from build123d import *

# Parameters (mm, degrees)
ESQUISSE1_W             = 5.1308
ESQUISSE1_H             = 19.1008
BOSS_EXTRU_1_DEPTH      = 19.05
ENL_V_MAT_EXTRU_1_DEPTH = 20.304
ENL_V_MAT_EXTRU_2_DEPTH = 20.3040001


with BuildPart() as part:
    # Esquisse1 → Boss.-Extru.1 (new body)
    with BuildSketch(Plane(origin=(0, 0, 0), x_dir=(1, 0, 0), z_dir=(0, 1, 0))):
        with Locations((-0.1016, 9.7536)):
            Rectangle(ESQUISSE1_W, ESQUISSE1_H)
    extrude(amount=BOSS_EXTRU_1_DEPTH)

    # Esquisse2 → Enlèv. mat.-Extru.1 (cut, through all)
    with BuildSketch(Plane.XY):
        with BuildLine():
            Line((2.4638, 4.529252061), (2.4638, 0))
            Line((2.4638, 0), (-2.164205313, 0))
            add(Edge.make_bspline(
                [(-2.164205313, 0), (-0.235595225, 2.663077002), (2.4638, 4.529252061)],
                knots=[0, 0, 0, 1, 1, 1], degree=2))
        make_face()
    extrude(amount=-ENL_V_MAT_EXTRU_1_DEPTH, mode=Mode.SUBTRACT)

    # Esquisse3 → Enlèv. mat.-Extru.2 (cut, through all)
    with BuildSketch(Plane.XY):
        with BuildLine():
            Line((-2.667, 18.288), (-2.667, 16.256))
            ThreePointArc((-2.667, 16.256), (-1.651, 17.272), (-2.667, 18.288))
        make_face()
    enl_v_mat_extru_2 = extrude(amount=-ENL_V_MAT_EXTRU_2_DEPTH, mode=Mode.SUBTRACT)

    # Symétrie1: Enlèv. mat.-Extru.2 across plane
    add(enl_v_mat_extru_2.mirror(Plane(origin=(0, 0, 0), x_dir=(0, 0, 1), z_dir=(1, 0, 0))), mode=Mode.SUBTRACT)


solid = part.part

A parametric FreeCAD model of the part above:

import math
import FreeCAD as App
import Part
import Sketcher

V = App.Vector
Q = App.Units.Quantity

doc = App.newDocument("Part")
body = doc.addObject("PartDesign::Body", "Body")

# Sketch on XZ plane
sketch1 = body.newObject("Sketcher::SketchObject", "Sketch")
sketch1.AttachmentSupport = (doc.getObject("XZ_Plane"), [""])
sketch1.MapMode = "FlatFace"
sketch1.addGeometry([
    Part.LineSegment(V(-3, -19, 0), V(-3, 0, 0)),
    Part.LineSegment(V(-3, 0, 0), V(2, 0, 0)),
    Part.LineSegment(V(2, 0, 0), V(2, -19, 0)),
    Part.LineSegment(V(2, -19, 0), V(-3, -19, 0)),
], False)
sketch1.addConstraint([
    Sketcher.Constraint("Coincident", 0, 2, 1, 1),
    Sketcher.Constraint("Coincident", 1, 2, 2, 1),
    Sketcher.Constraint("Coincident", 2, 2, 3, 1),
    Sketcher.Constraint("Coincident", 3, 2, 0, 1),
    Sketcher.Constraint("Vertical", 0),
    Sketcher.Constraint("Horizontal", 1),
    Sketcher.Constraint("Vertical", 2),
    Sketcher.Constraint("Horizontal", 3),
    Sketcher.Constraint("DistanceX", 1, 1, 1, 2, Q("0.202 in")),
    Sketcher.Constraint("DistanceY", 0, 1, 0, 2, Q("0.752 in")),
    Sketcher.Constraint("DistanceY", 2, 2, -1, 1, Q("0.76 in")),
    Sketcher.Constraint("DistanceX", 0, 2, -1, 1, Q("0.105 in")),
])
pad1 = body.newObject("PartDesign::Pad", "Pad")
pad1.Profile = sketch1
pad1.Length = Q("0.75 in")
pad1.Reversed = True

# Sketch on XY plane
sketch2 = body.newObject("Sketcher::SketchObject", "Sketch001")
sketch2.AttachmentSupport = (doc.getObject("XY_Plane"), [""])
sketch2.MapMode = "FlatFace"
sketch2.addGeometry([
    Part.LineSegment(V(2.4638, 0, 0), V(2.4638, 4.529252, 0)),
    Part.BSplineCurve([V(-2.164205, 0, 0), V(-0.235595, 2.663077, 0), V(2.4638, 4.529252, 0)], [3, 3], [0, 1], False, 2, [1, 1, 1], False),
    Part.LineSegment(V(-2.164205, 0, 0), V(2.4638, 0, 0)),
], False)
sketch2.addConstraint([
    Sketcher.Constraint("Block", 1),
    Sketcher.Constraint("Coincident", 0, 2, 1, 2),
    Sketcher.Constraint("Coincident", 1, 1, 2, 1),
    Sketcher.Constraint("Coincident", 2, 2, 0, 1),
    Sketcher.Constraint("Vertical", 0),
    Sketcher.Constraint("Horizontal", 2),
])
pocket1 = body.newObject("PartDesign::Pocket", "Pocket")
pocket1.Profile = sketch2
pocket1.Type = "ThroughAll"

# Sketch on XY plane
sketch3 = body.newObject("Sketcher::SketchObject", "Sketch002")
sketch3.AttachmentSupport = (doc.getObject("XY_Plane"), [""])
sketch3.MapMode = "FlatFace"
sketch3.addGeometry([
    Part.LineSegment(V(-2.7, 18.3, 0), V(-2.7, 16.3, 0)),
    Part.ArcOfCircle(Part.Circle(V(-2.7, 17.3, 0), V(0, 0, 1), 1), math.radians(-90), math.radians(90)),
], False)
sketch3.addConstraint([
    Sketcher.Constraint("Coincident", 0, 1, 1, 2),
    Sketcher.Constraint("Coincident", 1, 1, 0, 2),
    Sketcher.Constraint("Vertical", 0),
    Sketcher.Constraint("Vertical", 1, 3, 0, 1),
    Sketcher.Constraint("Radius", 1, Q("0.04 in")),
    Sketcher.Constraint("DistanceY", -1, 1, 1, 3, Q("0.68 in")),
    Sketcher.Constraint("DistanceX", 1, 3, -1, 1, Q("0.105 in")),
])
pocket2 = body.newObject("PartDesign::Pocket", "Pocket001")
pocket2.Profile = sketch3
pocket2.Type = "ThroughAll"
doc.recompute()

mirrored = body.newObject("PartDesign::Mirrored", "Mirrored")
mirrored.Originals = [pocket2]
mirrored.MirrorPlane = (doc.getObject("YZ_Plane"), [""])
body.Tip = mirrored

doc.recompute()
